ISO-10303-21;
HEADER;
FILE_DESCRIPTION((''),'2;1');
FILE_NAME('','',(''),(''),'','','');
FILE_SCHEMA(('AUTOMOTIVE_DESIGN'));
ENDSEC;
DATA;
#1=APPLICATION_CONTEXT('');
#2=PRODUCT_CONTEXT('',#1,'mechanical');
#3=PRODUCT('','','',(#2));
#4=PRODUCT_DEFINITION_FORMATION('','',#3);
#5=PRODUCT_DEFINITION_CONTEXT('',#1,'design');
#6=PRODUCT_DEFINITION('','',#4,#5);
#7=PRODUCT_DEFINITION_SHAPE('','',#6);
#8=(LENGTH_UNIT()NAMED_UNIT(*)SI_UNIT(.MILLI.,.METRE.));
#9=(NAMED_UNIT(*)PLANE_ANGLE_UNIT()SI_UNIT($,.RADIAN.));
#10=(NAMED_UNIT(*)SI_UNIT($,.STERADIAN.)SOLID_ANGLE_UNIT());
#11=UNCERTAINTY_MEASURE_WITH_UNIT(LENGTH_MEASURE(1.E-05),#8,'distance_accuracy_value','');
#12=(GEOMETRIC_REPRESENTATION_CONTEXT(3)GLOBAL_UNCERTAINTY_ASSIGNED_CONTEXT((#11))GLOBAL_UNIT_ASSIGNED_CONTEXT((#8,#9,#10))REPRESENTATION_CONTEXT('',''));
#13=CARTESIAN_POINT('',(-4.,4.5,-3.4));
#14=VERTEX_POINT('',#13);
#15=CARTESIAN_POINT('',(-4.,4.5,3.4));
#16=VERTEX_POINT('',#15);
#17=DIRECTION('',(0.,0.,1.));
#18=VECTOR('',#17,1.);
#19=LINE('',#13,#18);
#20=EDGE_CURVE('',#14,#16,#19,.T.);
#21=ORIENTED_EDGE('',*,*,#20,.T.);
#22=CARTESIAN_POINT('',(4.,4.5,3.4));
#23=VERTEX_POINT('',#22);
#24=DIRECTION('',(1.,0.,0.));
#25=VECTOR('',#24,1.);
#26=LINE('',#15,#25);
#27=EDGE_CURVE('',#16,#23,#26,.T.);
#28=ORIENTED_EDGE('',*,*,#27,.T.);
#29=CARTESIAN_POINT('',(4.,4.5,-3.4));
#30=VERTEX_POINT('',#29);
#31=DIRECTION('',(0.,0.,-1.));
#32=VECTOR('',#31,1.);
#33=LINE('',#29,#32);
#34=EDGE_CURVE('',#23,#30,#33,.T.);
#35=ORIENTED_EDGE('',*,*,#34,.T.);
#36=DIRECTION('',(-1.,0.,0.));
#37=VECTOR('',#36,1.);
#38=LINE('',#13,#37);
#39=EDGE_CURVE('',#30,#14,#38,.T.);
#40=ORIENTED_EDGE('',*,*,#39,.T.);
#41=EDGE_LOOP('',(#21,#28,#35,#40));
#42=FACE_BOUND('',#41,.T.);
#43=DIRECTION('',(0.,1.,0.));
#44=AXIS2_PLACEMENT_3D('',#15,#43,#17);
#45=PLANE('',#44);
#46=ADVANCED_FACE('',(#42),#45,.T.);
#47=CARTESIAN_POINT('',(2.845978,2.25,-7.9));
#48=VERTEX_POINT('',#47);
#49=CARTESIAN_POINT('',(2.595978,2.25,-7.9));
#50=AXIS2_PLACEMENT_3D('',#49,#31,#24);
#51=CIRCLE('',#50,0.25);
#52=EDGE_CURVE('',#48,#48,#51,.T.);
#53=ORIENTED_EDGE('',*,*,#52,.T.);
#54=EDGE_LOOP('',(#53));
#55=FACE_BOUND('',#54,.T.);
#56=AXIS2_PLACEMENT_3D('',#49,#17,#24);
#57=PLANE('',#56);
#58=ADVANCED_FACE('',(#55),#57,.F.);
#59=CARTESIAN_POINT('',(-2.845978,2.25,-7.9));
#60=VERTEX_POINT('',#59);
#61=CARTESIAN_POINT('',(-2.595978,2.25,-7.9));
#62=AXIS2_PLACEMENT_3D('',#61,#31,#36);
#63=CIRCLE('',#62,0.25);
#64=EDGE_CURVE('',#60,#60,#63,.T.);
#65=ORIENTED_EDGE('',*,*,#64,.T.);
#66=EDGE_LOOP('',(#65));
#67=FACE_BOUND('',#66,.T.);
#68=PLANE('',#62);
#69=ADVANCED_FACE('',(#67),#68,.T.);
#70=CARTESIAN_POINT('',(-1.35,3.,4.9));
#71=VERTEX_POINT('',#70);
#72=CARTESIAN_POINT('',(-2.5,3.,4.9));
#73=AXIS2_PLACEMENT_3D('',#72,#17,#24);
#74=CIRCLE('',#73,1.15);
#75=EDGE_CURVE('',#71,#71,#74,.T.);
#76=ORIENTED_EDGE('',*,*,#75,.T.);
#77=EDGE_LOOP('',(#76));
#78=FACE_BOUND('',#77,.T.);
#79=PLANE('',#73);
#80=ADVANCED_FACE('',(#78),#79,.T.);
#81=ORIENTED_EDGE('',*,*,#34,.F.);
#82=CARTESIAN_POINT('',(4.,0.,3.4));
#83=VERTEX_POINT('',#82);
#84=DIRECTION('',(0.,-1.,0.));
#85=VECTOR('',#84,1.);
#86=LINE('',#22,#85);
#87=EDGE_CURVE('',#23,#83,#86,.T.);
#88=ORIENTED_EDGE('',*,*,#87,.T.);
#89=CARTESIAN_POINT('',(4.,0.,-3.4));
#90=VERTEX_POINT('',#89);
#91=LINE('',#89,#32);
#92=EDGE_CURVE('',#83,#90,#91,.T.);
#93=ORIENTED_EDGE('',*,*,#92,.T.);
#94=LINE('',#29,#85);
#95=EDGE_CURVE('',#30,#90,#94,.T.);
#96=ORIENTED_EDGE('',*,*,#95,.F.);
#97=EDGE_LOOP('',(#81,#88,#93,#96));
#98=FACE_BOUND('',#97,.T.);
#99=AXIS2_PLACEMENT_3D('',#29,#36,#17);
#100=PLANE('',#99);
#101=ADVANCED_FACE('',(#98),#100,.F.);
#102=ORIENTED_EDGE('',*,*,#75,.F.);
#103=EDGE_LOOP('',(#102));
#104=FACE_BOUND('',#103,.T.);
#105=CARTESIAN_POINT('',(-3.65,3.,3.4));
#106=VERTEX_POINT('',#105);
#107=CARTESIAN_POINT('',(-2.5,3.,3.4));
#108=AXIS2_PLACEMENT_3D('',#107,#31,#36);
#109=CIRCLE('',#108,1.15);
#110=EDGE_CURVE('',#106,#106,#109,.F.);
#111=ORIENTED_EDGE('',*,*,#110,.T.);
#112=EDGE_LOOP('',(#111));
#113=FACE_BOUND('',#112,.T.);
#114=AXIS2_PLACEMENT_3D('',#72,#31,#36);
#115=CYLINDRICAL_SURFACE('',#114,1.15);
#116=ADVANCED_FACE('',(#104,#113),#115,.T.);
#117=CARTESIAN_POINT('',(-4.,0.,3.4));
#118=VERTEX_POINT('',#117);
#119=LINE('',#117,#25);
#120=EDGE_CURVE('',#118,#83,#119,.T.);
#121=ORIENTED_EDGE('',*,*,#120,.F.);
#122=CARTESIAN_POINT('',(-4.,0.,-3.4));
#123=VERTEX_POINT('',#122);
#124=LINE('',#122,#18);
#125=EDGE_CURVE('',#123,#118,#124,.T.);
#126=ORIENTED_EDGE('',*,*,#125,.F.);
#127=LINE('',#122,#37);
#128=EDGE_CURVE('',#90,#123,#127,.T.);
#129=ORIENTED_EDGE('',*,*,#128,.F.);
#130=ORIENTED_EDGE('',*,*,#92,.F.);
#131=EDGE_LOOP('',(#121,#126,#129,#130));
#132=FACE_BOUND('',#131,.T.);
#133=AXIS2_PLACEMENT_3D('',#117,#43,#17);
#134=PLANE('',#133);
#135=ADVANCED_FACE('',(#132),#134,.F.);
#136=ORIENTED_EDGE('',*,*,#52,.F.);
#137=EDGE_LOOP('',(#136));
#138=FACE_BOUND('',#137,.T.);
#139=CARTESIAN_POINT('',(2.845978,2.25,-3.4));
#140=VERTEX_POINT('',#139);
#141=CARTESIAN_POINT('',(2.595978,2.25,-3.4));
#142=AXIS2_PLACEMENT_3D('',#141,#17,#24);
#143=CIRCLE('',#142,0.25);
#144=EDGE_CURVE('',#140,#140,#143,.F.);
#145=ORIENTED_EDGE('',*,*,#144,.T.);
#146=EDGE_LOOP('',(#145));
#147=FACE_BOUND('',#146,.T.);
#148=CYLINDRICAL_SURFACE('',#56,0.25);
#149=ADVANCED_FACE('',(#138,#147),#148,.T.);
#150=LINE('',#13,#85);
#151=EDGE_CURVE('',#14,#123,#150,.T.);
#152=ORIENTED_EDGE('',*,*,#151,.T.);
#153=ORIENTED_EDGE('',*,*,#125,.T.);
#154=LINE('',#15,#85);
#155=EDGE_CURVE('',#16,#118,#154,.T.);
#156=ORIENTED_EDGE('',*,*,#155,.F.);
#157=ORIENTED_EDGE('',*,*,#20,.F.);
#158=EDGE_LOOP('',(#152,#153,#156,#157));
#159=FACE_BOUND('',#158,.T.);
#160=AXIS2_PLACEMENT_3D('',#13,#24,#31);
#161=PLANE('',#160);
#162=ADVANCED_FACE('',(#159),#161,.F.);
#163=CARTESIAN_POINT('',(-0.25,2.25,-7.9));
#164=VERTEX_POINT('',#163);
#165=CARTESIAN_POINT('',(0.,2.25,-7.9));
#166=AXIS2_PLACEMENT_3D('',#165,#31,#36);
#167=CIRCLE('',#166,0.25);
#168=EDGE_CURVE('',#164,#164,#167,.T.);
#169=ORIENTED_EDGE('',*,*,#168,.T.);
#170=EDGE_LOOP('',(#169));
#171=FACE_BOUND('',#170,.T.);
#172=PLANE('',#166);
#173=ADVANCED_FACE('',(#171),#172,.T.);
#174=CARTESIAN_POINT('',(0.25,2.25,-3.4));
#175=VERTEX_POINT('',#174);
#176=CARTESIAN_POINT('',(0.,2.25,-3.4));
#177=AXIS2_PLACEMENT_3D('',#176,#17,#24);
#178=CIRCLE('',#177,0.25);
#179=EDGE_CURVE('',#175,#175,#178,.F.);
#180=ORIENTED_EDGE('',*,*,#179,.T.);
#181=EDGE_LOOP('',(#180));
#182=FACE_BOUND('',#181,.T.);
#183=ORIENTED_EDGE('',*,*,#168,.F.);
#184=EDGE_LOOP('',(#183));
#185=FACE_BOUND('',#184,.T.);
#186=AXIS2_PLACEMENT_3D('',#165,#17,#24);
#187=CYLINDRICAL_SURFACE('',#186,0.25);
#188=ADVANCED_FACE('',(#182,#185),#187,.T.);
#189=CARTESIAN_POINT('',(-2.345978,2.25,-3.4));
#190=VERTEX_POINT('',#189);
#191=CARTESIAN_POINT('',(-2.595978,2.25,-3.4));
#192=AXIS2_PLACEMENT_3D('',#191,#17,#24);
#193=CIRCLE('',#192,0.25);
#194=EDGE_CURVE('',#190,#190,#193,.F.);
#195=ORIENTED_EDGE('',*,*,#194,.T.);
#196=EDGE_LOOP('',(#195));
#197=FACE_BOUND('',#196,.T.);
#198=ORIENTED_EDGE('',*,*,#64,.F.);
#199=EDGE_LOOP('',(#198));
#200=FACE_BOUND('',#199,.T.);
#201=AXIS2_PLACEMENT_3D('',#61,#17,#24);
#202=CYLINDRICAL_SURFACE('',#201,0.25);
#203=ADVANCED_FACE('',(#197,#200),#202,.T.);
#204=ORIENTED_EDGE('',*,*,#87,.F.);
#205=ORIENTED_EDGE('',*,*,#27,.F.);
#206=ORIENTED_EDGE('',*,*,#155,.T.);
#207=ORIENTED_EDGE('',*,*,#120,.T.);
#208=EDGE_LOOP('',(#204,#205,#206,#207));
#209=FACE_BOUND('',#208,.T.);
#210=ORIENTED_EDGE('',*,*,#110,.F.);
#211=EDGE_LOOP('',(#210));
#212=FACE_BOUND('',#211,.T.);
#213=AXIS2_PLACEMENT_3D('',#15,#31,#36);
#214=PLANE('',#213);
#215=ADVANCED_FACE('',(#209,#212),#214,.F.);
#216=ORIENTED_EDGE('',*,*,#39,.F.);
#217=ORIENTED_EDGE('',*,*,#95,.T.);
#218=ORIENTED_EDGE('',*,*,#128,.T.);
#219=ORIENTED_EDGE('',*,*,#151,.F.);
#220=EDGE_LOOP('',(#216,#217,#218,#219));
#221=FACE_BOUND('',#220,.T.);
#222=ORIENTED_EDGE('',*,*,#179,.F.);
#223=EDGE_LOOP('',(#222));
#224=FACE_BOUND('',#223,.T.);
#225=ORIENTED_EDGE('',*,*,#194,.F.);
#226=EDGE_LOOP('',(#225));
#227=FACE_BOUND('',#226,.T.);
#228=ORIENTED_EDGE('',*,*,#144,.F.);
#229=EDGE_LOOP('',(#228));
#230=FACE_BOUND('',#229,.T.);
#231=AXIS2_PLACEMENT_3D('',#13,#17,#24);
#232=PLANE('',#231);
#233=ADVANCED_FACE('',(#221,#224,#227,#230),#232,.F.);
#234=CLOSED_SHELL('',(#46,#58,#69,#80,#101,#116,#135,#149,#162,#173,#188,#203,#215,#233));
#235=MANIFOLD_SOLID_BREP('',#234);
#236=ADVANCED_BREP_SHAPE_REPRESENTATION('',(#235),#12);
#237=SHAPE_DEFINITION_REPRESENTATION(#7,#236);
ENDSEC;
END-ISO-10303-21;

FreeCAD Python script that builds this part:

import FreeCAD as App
import Part
import Sketcher
Q = App.Units.Quantity


def add_polygon(sketch, points):
    """Adds a closed chain of lines whose ends are joined by coincident constraints."""
    first, n = sketch.GeometryCount, len(points)
    for a, b in zip(points, points[1:] + points[:1]):
        sketch.addGeometry(Part.LineSegment(App.Vector(*a, 0), App.Vector(*b, 0)), False)
    for i in range(n):
        sketch.addConstraint(Sketcher.Constraint("Coincident", first + i, 2, first + (i + 1) % n, 1))

doc = App.newDocument("Part")
params = doc.addObject("Spreadsheet::Sheet", "Params")
for row, (alias, value) in enumerate([
    ("sketch1_width", "8 mm"),
    ("sketch1_height", "6.8 mm"),
    ("pad1_length", "4.5 mm"),
    ("sketch2_diameter", "0.5 mm"),
    ("pad2_length", "4.5 mm"),
    ("sketch3_diameter", "2.3 mm"),
    ("pad3_length", "1.5 mm"),
], start=1):
    params.set(f"A{row}", alias)
    params.set(f"B{row}", "=" + value)
    params.setAlias(f"B{row}", alias)

body = doc.addObject("PartDesign::Body", "Body")

# Sketch on XZ plane
sketch1 = body.newObject("Sketcher::SketchObject", "Sketch")
sketch1.AttachmentSupport = (doc.getObject("XZ_Plane"), [""])
sketch1.MapMode = "FlatFace"
add_polygon(sketch1, [(-4, -3), (-4, 3), (4, 3), (4, -3)])  # lines 0-3
sketch1.addConstraint([
    Sketcher.Constraint("Vertical", 0),
    Sketcher.Constraint("Horizontal", 1),
    Sketcher.Constraint("Vertical", 2),
    Sketcher.Constraint("Horizontal", 3),
    Sketcher.Constraint("Symmetric", 0, 2, 2, 2, -1, 1),
    Sketcher.Constraint("DistanceX", 1, 1, 1, 2, Q("8 mm")),
    Sketcher.Constraint("DistanceY", 0, 1, 0, 2, Q("6.8 mm")),
])
sketch1.setExpression("Constraints[9]", "Params.sketch1_width")
sketch1.setExpression("Constraints[10]", "Params.sketch1_height")
pad1 = body.newObject("PartDesign::Pad", "Pad")
pad1.Profile = sketch1
pad1.setExpression("Length", "Params.pad1_length")
pad1.Reversed = True

# Sketch on XY plane
sketch2 = body.newObject("Sketcher::SketchObject", "Sketch001")
sketch2.AttachmentSupport = (doc.getObject("XY_Plane"), [""])
sketch2.MapMode = "FlatFace"
sketch2.AttachmentOffset = App.Placement(App.Vector(0, 0, -3.4), App.Rotation())
sketch2.addGeometry([
    Part.Circle(App.Vector(0, 2.25, 0), App.Vector(0, 0, 1), 0.25),
    Part.Circle(App.Vector(-2.6, 2.25, 0), App.Vector(0, 0, 1), 0.25),
    Part.Circle(App.Vector(2.6, 2.25, 0), App.Vector(0, 0, 1), 0.25),
], False)
sketch2.addConstraint([
    Sketcher.Constraint("Equal", 0, 1),
    Sketcher.Constraint("Equal", 1, 2),
    Sketcher.Constraint("Symmetric", 1, 3, 2, 3, -2),
    Sketcher.Constraint("PointOnObject", 0, 3, -2),
    Sketcher.Constraint("Horizontal", 0, 3, 1, 3),
    Sketcher.Constraint("Diameter", 0, Q("0.5 mm")),
    Sketcher.Constraint("DistanceY", -1, 1, 0, 3, Q("2.25 mm")),
    Sketcher.Constraint("DistanceX", 1, 3, -1, 1, Q("2.595978 mm")),
])
sketch2.setExpression("Constraints[5]", "Params.sketch2_diameter")
pad2 = body.newObject("PartDesign::Pad", "Pad001")
pad2.Profile = sketch2
pad2.setExpression("Length", "Params.pad2_length")
pad2.Reversed = True

# Sketch on XY plane
sketch3 = body.newObject("Sketcher::SketchObject", "Sketch002")
sketch3.AttachmentSupport = (doc.getObject("XY_Plane"), [""])
sketch3.MapMode = "FlatFace"
sketch3.AttachmentOffset = App.Placement(App.Vector(0, 0, 3.4), App.Rotation())
sketch3.addGeometry(Part.Circle(App.Vector(-2.5, 3, 0), App.Vector(0, 0, 1), 1.1), False)
sketch3.addConstraint([
    Sketcher.Constraint("Diameter", 0, Q("2.3 mm")),
    Sketcher.Constraint("DistanceY", -1, 1, 0, 3, Q("3 mm")),
    Sketcher.Constraint("DistanceX", 0, 3, -1, 1, Q("2.5 mm")),
])
sketch3.setExpression("Constraints[0]", "Params.sketch3_diameter")
pad3 = body.newObject("PartDesign::Pad", "Pad002")
pad3.Profile = sketch3
pad3.setExpression("Length", "Params.pad3_length")

doc.recompute()
